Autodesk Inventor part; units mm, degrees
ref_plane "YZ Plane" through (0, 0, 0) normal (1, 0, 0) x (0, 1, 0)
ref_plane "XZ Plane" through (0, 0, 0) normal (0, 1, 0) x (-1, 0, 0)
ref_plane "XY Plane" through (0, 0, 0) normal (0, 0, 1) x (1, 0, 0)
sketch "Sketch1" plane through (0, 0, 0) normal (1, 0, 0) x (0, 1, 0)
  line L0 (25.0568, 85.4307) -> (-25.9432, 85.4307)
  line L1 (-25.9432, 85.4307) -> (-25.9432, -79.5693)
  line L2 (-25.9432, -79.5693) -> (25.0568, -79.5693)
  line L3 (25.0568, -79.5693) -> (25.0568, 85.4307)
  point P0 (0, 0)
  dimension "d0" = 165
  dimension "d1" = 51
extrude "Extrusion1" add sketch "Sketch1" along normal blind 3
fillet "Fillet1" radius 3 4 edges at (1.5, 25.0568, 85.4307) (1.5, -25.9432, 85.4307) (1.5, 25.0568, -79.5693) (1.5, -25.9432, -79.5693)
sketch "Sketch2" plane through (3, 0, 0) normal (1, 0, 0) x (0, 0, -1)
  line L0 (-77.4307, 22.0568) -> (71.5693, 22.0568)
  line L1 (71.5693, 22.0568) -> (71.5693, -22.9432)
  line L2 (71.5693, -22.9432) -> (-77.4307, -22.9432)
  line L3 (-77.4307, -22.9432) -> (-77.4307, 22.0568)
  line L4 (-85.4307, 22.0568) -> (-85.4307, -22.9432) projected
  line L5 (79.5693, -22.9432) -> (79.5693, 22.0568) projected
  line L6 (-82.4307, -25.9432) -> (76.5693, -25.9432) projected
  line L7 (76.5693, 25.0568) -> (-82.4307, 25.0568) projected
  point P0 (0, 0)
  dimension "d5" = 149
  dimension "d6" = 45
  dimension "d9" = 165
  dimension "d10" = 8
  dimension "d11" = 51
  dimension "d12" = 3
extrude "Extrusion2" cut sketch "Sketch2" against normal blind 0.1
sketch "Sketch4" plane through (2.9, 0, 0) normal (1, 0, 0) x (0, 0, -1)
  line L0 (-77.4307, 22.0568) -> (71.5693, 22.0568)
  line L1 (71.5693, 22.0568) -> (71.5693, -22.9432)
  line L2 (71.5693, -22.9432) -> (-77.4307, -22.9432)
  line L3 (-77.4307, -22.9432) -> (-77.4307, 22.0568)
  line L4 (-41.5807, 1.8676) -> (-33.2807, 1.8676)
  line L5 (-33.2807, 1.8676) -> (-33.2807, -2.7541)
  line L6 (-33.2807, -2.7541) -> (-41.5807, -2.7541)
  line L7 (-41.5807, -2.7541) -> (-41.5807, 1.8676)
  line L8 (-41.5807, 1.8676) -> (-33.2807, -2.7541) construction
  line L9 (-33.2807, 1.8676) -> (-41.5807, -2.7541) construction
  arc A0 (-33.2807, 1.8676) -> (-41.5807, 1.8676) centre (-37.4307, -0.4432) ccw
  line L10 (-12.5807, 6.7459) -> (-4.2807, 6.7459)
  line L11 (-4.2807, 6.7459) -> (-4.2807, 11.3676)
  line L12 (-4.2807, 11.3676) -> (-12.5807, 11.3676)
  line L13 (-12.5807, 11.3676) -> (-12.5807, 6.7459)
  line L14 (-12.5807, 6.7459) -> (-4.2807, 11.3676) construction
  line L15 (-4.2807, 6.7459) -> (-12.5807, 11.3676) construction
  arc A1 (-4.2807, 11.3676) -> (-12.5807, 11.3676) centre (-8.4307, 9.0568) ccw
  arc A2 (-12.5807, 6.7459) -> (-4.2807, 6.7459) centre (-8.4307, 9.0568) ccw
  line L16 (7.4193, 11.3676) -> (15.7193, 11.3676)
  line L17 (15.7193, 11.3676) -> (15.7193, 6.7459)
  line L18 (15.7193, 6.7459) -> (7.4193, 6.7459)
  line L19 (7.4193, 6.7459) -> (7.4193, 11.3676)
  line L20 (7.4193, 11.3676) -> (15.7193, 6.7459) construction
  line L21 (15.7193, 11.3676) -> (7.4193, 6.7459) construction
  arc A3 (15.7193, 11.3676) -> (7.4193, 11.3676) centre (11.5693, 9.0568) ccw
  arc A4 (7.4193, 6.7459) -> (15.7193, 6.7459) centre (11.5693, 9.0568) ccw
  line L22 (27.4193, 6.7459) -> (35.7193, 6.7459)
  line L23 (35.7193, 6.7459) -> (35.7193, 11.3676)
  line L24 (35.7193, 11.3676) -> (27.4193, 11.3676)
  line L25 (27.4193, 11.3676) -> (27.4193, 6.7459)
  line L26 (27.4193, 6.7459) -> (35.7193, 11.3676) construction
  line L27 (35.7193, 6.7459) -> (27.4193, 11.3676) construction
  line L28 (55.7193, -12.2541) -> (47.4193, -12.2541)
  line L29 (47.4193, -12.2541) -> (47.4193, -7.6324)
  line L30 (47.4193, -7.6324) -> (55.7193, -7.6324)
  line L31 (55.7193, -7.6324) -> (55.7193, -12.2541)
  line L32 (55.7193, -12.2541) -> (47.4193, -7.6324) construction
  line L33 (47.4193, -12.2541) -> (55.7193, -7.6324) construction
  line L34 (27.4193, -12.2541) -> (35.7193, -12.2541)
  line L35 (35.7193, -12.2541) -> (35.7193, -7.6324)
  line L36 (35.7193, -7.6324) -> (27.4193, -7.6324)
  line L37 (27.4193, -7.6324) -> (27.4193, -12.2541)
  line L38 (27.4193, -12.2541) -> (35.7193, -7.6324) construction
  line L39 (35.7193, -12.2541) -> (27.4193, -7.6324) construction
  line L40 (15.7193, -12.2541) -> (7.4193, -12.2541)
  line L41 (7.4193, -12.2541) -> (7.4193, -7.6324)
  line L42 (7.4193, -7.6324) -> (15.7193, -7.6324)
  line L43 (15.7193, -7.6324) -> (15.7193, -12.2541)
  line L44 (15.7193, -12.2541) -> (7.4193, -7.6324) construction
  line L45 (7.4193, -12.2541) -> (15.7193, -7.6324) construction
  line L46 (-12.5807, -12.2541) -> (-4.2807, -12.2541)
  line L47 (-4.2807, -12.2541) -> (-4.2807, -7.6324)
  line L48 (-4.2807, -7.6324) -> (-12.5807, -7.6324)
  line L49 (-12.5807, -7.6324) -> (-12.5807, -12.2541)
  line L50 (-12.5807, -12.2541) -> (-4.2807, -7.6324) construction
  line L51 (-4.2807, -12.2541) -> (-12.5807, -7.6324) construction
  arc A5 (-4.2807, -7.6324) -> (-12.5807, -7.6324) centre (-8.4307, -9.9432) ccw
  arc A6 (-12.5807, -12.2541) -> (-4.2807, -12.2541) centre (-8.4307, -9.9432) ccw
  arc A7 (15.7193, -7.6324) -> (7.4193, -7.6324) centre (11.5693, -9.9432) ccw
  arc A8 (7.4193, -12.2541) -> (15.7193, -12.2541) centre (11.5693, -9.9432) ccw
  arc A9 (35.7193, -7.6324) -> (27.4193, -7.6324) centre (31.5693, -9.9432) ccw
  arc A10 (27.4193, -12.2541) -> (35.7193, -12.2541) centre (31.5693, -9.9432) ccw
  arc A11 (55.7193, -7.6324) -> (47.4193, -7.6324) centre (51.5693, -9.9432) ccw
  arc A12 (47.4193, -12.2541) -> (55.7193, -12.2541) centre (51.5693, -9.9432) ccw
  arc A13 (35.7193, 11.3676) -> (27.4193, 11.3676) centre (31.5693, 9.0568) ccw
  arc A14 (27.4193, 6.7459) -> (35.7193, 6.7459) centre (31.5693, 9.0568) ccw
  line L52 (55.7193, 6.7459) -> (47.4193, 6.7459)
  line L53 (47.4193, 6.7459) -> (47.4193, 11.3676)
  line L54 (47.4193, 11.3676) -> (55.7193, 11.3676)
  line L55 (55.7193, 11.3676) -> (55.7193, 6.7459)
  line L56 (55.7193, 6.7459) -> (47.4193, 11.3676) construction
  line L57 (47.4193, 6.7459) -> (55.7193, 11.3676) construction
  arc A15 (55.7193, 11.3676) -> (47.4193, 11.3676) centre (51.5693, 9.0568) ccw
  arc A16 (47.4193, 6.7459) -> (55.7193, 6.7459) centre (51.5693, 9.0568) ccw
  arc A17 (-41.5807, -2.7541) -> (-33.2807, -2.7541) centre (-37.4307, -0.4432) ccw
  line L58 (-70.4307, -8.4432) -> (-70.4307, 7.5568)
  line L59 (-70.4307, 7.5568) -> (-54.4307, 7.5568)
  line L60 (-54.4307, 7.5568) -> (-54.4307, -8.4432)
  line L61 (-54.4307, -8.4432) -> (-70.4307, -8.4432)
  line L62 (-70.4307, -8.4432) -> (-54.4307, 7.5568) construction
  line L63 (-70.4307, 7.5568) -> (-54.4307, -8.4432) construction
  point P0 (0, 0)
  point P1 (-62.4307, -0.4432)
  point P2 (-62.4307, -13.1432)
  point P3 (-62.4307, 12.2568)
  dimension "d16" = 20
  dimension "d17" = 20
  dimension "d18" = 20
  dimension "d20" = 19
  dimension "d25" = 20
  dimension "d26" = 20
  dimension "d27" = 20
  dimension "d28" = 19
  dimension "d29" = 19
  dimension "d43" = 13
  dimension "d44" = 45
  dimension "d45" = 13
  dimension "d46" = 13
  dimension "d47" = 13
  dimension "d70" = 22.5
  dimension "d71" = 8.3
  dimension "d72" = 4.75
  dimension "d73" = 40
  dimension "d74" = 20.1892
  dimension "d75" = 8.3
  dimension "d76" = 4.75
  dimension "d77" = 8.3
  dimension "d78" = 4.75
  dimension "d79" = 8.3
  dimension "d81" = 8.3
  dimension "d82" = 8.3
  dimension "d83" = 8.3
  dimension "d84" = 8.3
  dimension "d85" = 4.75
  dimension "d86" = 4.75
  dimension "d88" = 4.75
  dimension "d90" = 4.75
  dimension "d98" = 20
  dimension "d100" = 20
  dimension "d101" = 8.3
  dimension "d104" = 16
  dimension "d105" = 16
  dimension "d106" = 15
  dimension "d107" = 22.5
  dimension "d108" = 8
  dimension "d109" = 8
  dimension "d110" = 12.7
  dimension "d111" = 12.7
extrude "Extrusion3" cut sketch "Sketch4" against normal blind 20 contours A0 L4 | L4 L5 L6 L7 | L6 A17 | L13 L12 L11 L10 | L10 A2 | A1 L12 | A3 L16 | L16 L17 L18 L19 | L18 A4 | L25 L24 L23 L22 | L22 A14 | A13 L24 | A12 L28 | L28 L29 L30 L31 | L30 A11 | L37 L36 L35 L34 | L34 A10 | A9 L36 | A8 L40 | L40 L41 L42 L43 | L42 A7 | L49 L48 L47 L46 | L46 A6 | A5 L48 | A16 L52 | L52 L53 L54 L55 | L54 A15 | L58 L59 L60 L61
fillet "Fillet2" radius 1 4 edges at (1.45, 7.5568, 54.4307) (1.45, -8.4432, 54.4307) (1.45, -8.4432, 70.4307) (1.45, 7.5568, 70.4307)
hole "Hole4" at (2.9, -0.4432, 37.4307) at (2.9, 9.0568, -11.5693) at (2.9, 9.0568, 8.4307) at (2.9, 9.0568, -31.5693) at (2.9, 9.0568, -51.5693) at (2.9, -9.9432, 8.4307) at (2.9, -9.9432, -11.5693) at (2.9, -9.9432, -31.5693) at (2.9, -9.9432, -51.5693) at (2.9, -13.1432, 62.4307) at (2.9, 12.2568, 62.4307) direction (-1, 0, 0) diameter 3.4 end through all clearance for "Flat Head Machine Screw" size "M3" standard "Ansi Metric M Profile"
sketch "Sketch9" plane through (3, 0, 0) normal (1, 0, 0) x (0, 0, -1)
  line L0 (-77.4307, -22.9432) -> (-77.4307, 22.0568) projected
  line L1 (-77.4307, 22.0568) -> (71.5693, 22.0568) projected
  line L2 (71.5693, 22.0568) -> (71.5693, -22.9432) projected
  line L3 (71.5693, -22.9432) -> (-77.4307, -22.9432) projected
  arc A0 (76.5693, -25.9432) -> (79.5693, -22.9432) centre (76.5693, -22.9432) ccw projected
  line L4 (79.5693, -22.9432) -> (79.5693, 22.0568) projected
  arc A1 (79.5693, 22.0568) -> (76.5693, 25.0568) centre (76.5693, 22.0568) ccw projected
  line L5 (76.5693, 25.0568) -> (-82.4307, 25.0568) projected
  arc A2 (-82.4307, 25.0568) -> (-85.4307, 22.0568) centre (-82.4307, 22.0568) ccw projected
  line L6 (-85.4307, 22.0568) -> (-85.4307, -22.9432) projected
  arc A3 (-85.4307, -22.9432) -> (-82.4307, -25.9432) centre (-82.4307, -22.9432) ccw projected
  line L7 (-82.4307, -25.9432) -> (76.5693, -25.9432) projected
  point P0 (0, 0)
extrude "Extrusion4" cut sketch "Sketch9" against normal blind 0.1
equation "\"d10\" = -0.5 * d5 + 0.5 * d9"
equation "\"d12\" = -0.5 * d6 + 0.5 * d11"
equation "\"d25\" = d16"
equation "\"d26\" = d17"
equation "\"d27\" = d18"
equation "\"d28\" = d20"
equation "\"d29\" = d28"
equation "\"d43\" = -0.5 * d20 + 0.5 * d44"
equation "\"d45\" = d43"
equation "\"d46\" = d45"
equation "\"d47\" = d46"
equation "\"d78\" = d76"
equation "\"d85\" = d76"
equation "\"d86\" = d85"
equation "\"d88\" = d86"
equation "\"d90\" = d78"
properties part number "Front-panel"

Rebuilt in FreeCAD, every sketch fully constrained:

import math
import FreeCAD as App
import Part
import Sketcher
from FreeCAD import Vector


def edges_at(feature, points):
    """Names of the edges that pass closest to the given points."""
    edges = feature.Shape.Edges
    near = lambda p: min(range(len(edges)), key=lambda i: edges[i].distToShape(Part.Vertex(*p))[0])
    return sorted({f"Edge{near(p) + 1}" for p in points})

doc = App.newDocument("Part")
body = doc.addObject("PartDesign::Body", "Body")

# Sketch on YZ plane
sketch1 = body.newObject("Sketcher::SketchObject", "Sketch")
sketch1.AttachmentSupport = (doc.getObject("YZ_Plane"), [""])
sketch1.MapMode = "FlatFace"
sketch1.addGeometry([
    Part.LineSegment(Vector(25.0568, -79.5693, 0), Vector(25.0568, 85.4307, 0)),
    Part.LineSegment(Vector(25.0568, 85.4307, 0), Vector(-25.9432, 85.4307, 0)),
    Part.LineSegment(Vector(-25.9432, 85.4307, 0), Vector(-25.9432, -79.5693, 0)),
    Part.LineSegment(Vector(-25.9432, -79.5693, 0), Vector(25.0568, -79.5693, 0)),
], False)
sketch1.addConstraint([
    Sketcher.Constraint("Coincident", 0, 2, 1, 1),
    Sketcher.Constraint("Coincident", 1, 2, 2, 1),
    Sketcher.Constraint("Coincident", 2, 2, 3, 1),
    Sketcher.Constraint("Coincident", 3, 2, 0, 1),
    Sketcher.Constraint("Vertical", 0),
    Sketcher.Constraint("Horizontal", 1),
    Sketcher.Constraint("Vertical", 2),
    Sketcher.Constraint("Horizontal", 3),
    Sketcher.Constraint("DistanceX", 1, 2, 1, 1, 51.0),
    Sketcher.Constraint("DistanceY", 0, 1, 0, 2, 165.0),
    Sketcher.Constraint("DistanceX", -1, 1, 0, 2, 25.0568),
    Sketcher.Constraint("DistanceY", -1, 1, 0, 2, 85.4307),
])
pad1 = body.newObject("PartDesign::Pad", "Pad")
pad1.Profile = sketch1
pad1.Length = 3
doc.recompute()

fillet = body.newObject("PartDesign::Fillet", "Fillet")
fillet.Base = (pad1, edges_at(pad1, [
    (1.5, 25.057, 85.431),
    (1.5, -25.943, 85.431),
    (1.5, 25.057, -79.569),
    (1.5, -25.943, -79.569),
]))
fillet.Radius = 3

# Sketch on YZ plane
sketch2 = body.newObject("Sketcher::SketchObject", "Sketch001")
sketch2.AttachmentSupport = (doc.getObject("YZ_Plane"), [""])
sketch2.MapMode = "FlatFace"
sketch2.AttachmentOffset = App.Placement(Vector(0, 0, 3), App.Rotation())
sketch2.addGeometry([
    Part.LineSegment(Vector(22.0568, -71.5693, 0), Vector(22.0568, 77.4307, 0)),
    Part.LineSegment(Vector(22.0568, 77.4307, 0), Vector(-22.9432, 77.4307, 0)),
    Part.LineSegment(Vector(-22.9432, 77.4307, 0), Vector(-22.9432, -71.5693, 0)),
    Part.LineSegment(Vector(-22.9432, -71.5693, 0), Vector(22.0568, -71.5693, 0)),
], False)
sketch2.addConstraint([
    Sketcher.Constraint("Coincident", 0, 2, 1, 1),
    Sketcher.Constraint("Coincident", 1, 2, 2, 1),
    Sketcher.Constraint("Coincident", 2, 2, 3, 1),
    Sketcher.Constraint("Coincident", 3, 2, 0, 1),
    Sketcher.Constraint("Vertical", 0),
    Sketcher.Constraint("Horizontal", 1),
    Sketcher.Constraint("Vertical", 2),
    Sketcher.Constraint("Horizontal", 3),
    Sketcher.Constraint("DistanceX", 1, 2, 1, 1, 45.0),
    Sketcher.Constraint("DistanceY", 0, 1, 0, 2, 149.0),
    Sketcher.Constraint("DistanceX", -1, 1, 0, 2, 22.0568),
    Sketcher.Constraint("DistanceY", -1, 1, 0, 2, 77.4307),
])
pocket1 = body.newObject("PartDesign::Pocket", "Pocket")
pocket1.Profile = sketch2
pocket1.Length = 0.1

# Sketch on YZ plane
sketch3 = body.newObject("Sketcher::SketchObject", "Sketch002")
sketch3.AttachmentSupport = (doc.getObject("YZ_Plane"), [""])
sketch3.MapMode = "FlatFace"
sketch3.AttachmentOffset = App.Placement(Vector(0, 0, 2.9), App.Rotation())
sketch3.addGeometry([
    Part.ArcOfCircle(Part.Circle(Vector(-0.4432, 37.4307, 0), Vector(0, 0, 1), 4.749979), math.radians(-60.890097), math.radians(60.890097)),  # 0
    Part.LineSegment(Vector(1.8676, 41.5807, 0), Vector(-2.7541, 41.5807, 0)),  # 1
    Part.ArcOfCircle(Part.Circle(Vector(-0.4432, 37.4307, 0), Vector(0, 0, 1), 4.750027), math.radians(119.110957), math.radians(240.889043)),  # 2
    Part.LineSegment(Vector(-2.7541, 33.2807, 0), Vector(1.8676, 33.2807, 0)),  # 3
    Part.LineSegment(Vector(11.3676, 12.5807, 0), Vector(6.7459, 12.5807, 0)),  # 4
    Part.ArcOfCircle(Part.Circle(Vector(9.0568, 8.4307, 0), Vector(0, 0, 1), 4.750027), math.radians(119.110957), math.radians(240.889043)),  # 5
    Part.LineSegment(Vector(6.7459, 4.2807, 0), Vector(11.3676, 4.2807, 0)),  # 6
    Part.ArcOfCircle(Part.Circle(Vector(9.0568, 8.4307, 0), Vector(0, 0, 1), 4.749979), math.radians(-60.890097), math.radians(60.890097)),  # 7
    Part.ArcOfCircle(Part.Circle(Vector(9.0568, -11.5693, 0), Vector(0, 0, 1), 4.749979), math.radians(-60.890097), math.radians(60.890097)),  # 8
    Part.LineSegment(Vector(11.3676, -7.4193, 0), Vector(6.7459, -7.4193, 0)),  # 9
    Part.ArcOfCircle(Part.Circle(Vector(9.0568, -11.5693, 0), Vector(0, 0, 1), 4.750027), math.radians(119.110957), math.radians(240.889043)),  # 10
    Part.LineSegment(Vector(6.7459, -15.7193, 0), Vector(11.3676, -15.7193, 0)),  # 11
    Part.LineSegment(Vector(11.3676, -27.4193, 0), Vector(6.7459, -27.4193, 0)),  # 12
    Part.ArcOfCircle(Part.Circle(Vector(9.0568, -31.5693, 0), Vector(0, 0, 1), 4.750027), math.radians(119.110957), math.radians(240.889043)),  # 13
    Part.LineSegment(Vector(6.7459, -35.7193, 0), Vector(11.3676, -35.7193, 0)),  # 14
    Part.ArcOfCircle(Part.Circle(Vector(9.0568, -31.5693, 0), Vector(0, 0, 1), 4.749979), math.radians(-60.890097), math.radians(60.890097)),  # 15
    Part.ArcOfCircle(Part.Circle(Vector(-9.9432, -51.5693, 0), Vector(0, 0, 1), 4.750027), math.radians(119.110957), math.radians(240.889043)),  # 16
    Part.LineSegment(Vector(-12.2541, -55.7193, 0), Vector(-7.6324, -55.7193, 0)),  # 17
    Part.ArcOfCircle(Part.Circle(Vector(-9.9432, -51.5693, 0), Vector(0, 0, 1), 4.749979), math.radians(-60.890097), math.radians(60.890097)),  # 18
    Part.LineSegment(Vector(-7.6324, -47.4193, 0), Vector(-12.2541, -47.4193, 0)),  # 19
    Part.LineSegment(Vector(-7.6324, -27.4193, 0), Vector(-12.2541, -27.4193, 0)),  # 20
    Part.ArcOfCircle(Part.Circle(Vector(-9.9432, -31.5693, 0), Vector(0, 0, 1), 4.750027), math.radians(119.110957), math.radians(240.889043)),  # 21
    Part.LineSegment(Vector(-12.2541, -35.7193, 0), Vector(-7.6324, -35.7193, 0)),  # 22
    Part.ArcOfCircle(Part.Circle(Vector(-9.9432, -31.5693, 0), Vector(0, 0, 1), 4.749979), math.radians(-60.890097), math.radians(60.890097)),  # 23
    Part.ArcOfCircle(Part.Circle(Vector(-9.9432, -11.5693, 0), Vector(0, 0, 1), 4.750027), math.radians(119.110957), math.radians(240.889043)),  # 24
    Part.LineSegment(Vector(-12.2541, -15.7193, 0), Vector(-7.6324, -15.7193, 0)),  # 25
    Part.ArcOfCircle(Part.Circle(Vector(-9.9432, -11.5693, 0), Vector(0, 0, 1), 4.749979), math.radians(-60.890097), math.radians(60.890097)),  # 26
    Part.LineSegment(Vector(-7.6324, -7.4193, 0), Vector(-12.2541, -7.4193, 0)),  # 27
    Part.LineSegment(Vector(-7.6324, 12.5807, 0), Vector(-12.2541, 12.5807, 0)),  # 28
    Part.ArcOfCircle(Part.Circle(Vector(-9.9432, 8.4307, 0), Vector(0, 0, 1), 4.750027), math.radians(119.110957), math.radians(240.889043)),  # 29
    Part.LineSegment(Vector(-12.2541, 4.2807, 0), Vector(-7.6324, 4.2807, 0)),  # 30
    Part.ArcOfCircle(Part.Circle(Vector(-9.9432, 8.4307, 0), Vector(0, 0, 1), 4.749979), math.radians(-60.890097), math.radians(60.890097)),  # 31
    Part.ArcOfCircle(Part.Circle(Vector(9.0568, -51.5693, 0), Vector(0, 0, 1), 4.750027), math.radians(119.110957), math.radians(240.889043)),  # 32
    Part.LineSegment(Vector(6.7459, -55.7193, 0), Vector(11.3676, -55.7193, 0)),  # 33
    Part.ArcOfCircle(Part.Circle(Vector(9.0568, -51.5693, 0), Vector(0, 0, 1), 4.749979), math.radians(-60.890097), math.radians(60.890097)),  # 34
    Part.LineSegment(Vector(11.3676, -47.4193, 0), Vector(6.7459, -47.4193, 0)),  # 35
    Part.LineSegment(Vector(7.5568, 70.4307, 0), Vector(-8.4432, 70.4307, 0)),  # 36
    Part.LineSegment(Vector(-8.4432, 70.4307, 0), Vector(-8.4432, 54.4307, 0)),  # 37
    Part.LineSegment(Vector(-8.4432, 54.4307, 0), Vector(7.5568, 54.4307, 0)),  # 38
    Part.LineSegment(Vector(7.5568, 54.4307, 0), Vector(7.5568, 70.4307, 0)),  # 39
], False)
sketch3.addConstraint([
    Sketcher.Constraint("Coincident", 0, 2, 1, 1),
    Sketcher.Constraint("Coincident", 1, 2, 2, 1),
    Sketcher.Constraint("Coincident", 2, 2, 3, 1),
    Sketcher.Constraint("Coincident", 3, 2, 0, 1),
    Sketcher.Constraint("Coincident", 4, 2, 5, 1),
    Sketcher.Constraint("Coincident", 5, 2, 6, 1),
    Sketcher.Constraint("Coincident", 6, 2, 7, 1),
    Sketcher.Constraint("Coincident", 7, 2, 4, 1),
    Sketcher.Constraint("Coincident", 8, 2, 9, 1),
    Sketcher.Constraint("Coincident", 9, 2, 10, 1),
    Sketcher.Constraint("Coincident", 10, 2, 11, 1),
    Sketcher.Constraint("Coincident", 11, 2, 8, 1),
    Sketcher.Constraint("Coincident", 12, 2, 13, 1),
    Sketcher.Constraint("Coincident", 13, 2, 14, 1),
    Sketcher.Constraint("Coincident", 14, 2, 15, 1),
    Sketcher.Constraint("Coincident", 15, 2, 12, 1),
    Sketcher.Constraint("Coincident", 16, 2, 17, 1),
    Sketcher.Constraint("Coincident", 17, 2, 18, 1),
    Sketcher.Constraint("Coincident", 18, 2, 19, 1),
    Sketcher.Constraint("Coincident", 19, 2, 16, 1),
    Sketcher.Constraint("Coincident", 20, 2, 21, 1),
    Sketcher.Constraint("Coincident", 21, 2, 22, 1),
    Sketcher.Constraint("Coincident", 22, 2, 23, 1),
    Sketcher.Constraint("Coincident", 23, 2, 20, 1),
    Sketcher.Constraint("Coincident", 24, 2, 25, 1),
    Sketcher.Constraint("Coincident", 25, 2, 26, 1),
    Sketcher.Constraint("Coincident", 26, 2, 27, 1),
    Sketcher.Constraint("Coincident", 27, 2, 24, 1),
    Sketcher.Constraint("Coincident", 28, 2, 29, 1),
    Sketcher.Constraint("Coincident", 29, 2, 30, 1),
    Sketcher.Constraint("Coincident", 30, 2, 31, 1),
    Sketcher.Constraint("Coincident", 31, 2, 28, 1),
    Sketcher.Constraint("Coincident", 32, 2, 33, 1),
    Sketcher.Constraint("Coincident", 33, 2, 34, 1),
    Sketcher.Constraint("Coincident", 34, 2, 35, 1),
    Sketcher.Constraint("Coincident", 35, 2, 32, 1),
    Sketcher.Constraint("Coincident", 36, 2, 37, 1),
    Sketcher.Constraint("Coincident", 37, 2, 38, 1),
    Sketcher.Constraint("Coincident", 38, 2, 39, 1),
    Sketcher.Constraint("Coincident", 39, 2, 36, 1),
    Sketcher.Constraint("Horizontal", 1),
    Sketcher.Constraint("Horizontal", 3),
    Sketcher.Constraint("Horizontal", 4),
    Sketcher.Constraint("Horizontal", 6),
    Sketcher.Constraint("Horizontal", 9),
    Sketcher.Constraint("Horizontal", 11),
    Sketcher.Constraint("Horizontal", 12),
    Sketcher.Constraint("Horizontal", 14),
    Sketcher.Constraint("Horizontal", 17),
    Sketcher.Constraint("Horizontal", 19),
    Sketcher.Constraint("Horizontal", 20),
    Sketcher.Constraint("Horizontal", 22),
    Sketcher.Constraint("Horizontal", 25),
    Sketcher.Constraint("Horizontal", 27),
    Sketcher.Constraint("Horizontal", 28),
    Sketcher.Constraint("Horizontal", 30),
    Sketcher.Constraint("Horizontal", 33),
    Sketcher.Constraint("Horizontal", 35),
    Sketcher.Constraint("Horizontal", 36),
    Sketcher.Constraint("Vertical", 37),
    Sketcher.Constraint("Horizontal", 38),
    Sketcher.Constraint("Vertical", 39),
    Sketcher.Constraint("Coincident", 2, 3, 0, 3),
    Sketcher.Constraint("Coincident", 7, 3, 5, 3),
    Sketcher.Constraint("Coincident", 10, 3, 8, 3),
    Sketcher.Constraint("Coincident", 15, 3, 13, 3),
    Sketcher.Constraint("Coincident", 18, 3, 16, 3),
    Sketcher.Constraint("Coincident", 23, 3, 21, 3),
    Sketcher.Constraint("Coincident", 26, 3, 24, 3),
    Sketcher.Constraint("Coincident", 31, 3, 29, 3),
    Sketcher.Constraint("Coincident", 34, 3, 32, 3),
    Sketcher.Constraint("Equal", 0, 2),
    Sketcher.Constraint("Equal", 2, 5),
    Sketcher.Constraint("Equal", 5, 7),
    Sketcher.Constraint("Equal", 7, 8),
    Sketcher.Constraint("Equal", 8, 10),
    Sketcher.Constraint("Equal", 10, 13),
    Sketcher.Constraint("Equal", 13, 15),
    Sketcher.Constraint("Equal", 15, 16),
    Sketcher.Constraint("Equal", 16, 18),
    Sketcher.Constraint("Equal", 18, 21),
    Sketcher.Constraint("Equal", 21, 23),
    Sketcher.Constraint("Equal", 23, 24),
    Sketcher.Constraint("Equal", 24, 26),
    Sketcher.Constraint("Equal", 26, 29),
    Sketcher.Constraint("Equal", 29, 31),
    Sketcher.Constraint("Equal", 31, 32),
    Sketcher.Constraint("Equal", 32, 34),
    Sketcher.Constraint("Horizontal", 15, 3, 21, 3),
    Sketcher.Constraint("Horizontal", 10, 3, 24, 3),
    Sketcher.Constraint("Horizontal", 7, 3, 29, 3),
    Sketcher.Constraint("Horizontal", 18, 3, 32, 3),
    Sketcher.Constraint("Horizontal", 15, 2, 20, 2),
    Sketcher.Constraint("Horizontal", 14, 2, 21, 2),
    Sketcher.Constraint("Horizontal", 11, 2, 24, 2),
    Sketcher.Constraint("Horizontal", 9, 2, 26, 2),
    Sketcher.Constraint("Horizontal", 7, 2, 28, 2),
    Sketcher.Constraint("Horizontal", 6, 2, 29, 2),
    Sketcher.Constraint("Horizontal", 17, 2, 32, 2),
    Sketcher.Constraint("Horizontal", 19, 2, 34, 2),
    Sketcher.Constraint("Vertical", 7, 3, 8, 3),
    Sketcher.Constraint("Vertical", 10, 3, 13, 3),
    Sketcher.Constraint("Vertical", 18, 3, 21, 3),
    Sketcher.Constraint("Vertical", 23, 3, 24, 3),
    Sketcher.Constraint("Vertical", 26, 3, 29, 3),
    Sketcher.Constraint("Vertical", 15, 3, 32, 3),
    Sketcher.Constraint("Vertical", 1, 2, 2, 2),
    Sketcher.Constraint("Vertical", 4, 2, 5, 2),
    Sketcher.Constraint("Vertical", 7, 2, 8, 2),
    Sketcher.Constraint("Vertical", 9, 2, 10, 2),
    Sketcher.Constraint("Vertical", 10, 2, 12, 2),
    Sketcher.Constraint("Vertical", 12, 2, 13, 2),
    Sketcher.Constraint("Vertical", 17, 2, 18, 2),
    Sketcher.Constraint("Vertical", 19, 2, 20, 2),
    Sketcher.Constraint("Equal", 3, 4),
    Sketcher.Constraint("Equal", 38, 37),
    Sketcher.Constraint("DistanceX", 36, 2, 36, 1, 16.0),
    Sketcher.Constraint("Radius", 0, 4.75),
    Sketcher.Constraint("DistanceY", 8, 3, 5, 3, 20.0),
    Sketcher.Constraint("DistanceY", 13, 3, 8, 3, 20.0),
    Sketcher.Constraint("DistanceX", 16, 3, 13, 3, 19.0),
    Sketcher.Constraint("DistanceY", 16, 3, 13, 3, 20.0),
    Sketcher.Constraint("DistanceX", 36, 2, 0, 3, 8.0),
    Sketcher.Constraint("DistanceY", 2, 2, 1, 2, 8.3),
    Sketcher.Constraint("DistanceY", 5, 3, 0, 3, 29.0),
    Sketcher.Constraint("DistanceY", 0, 3, 36, 2, 33.0),
    Sketcher.Constraint("DistanceX", 0, 3, 5, 3, 9.5),
    Sketcher.Constraint("DistanceX", 1, 2, -1, 1, 2.754),
    Sketcher.Constraint("DistanceY", -1, 1, 0, 3, 37.4307),
])
pocket2 = body.newObject("PartDesign::Pocket", "Pocket001")
pocket2.Profile = sketch3
pocket2.Length = 20
doc.recompute()

fillet2 = body.newObject("PartDesign::Fillet", "Fillet001")
fillet2.Base = (pocket2, edges_at(pocket2, [
    (1.45, 7.557, 54.431),
    (1.45, -8.443, 54.431),
    (1.45, -8.443, 70.431),
    (1.45, 7.557, 70.431),
]))
fillet2.Radius = 1

# Sketch on YZ plane
sketch4 = body.newObject("Sketcher::SketchObject", "Sketch003")
sketch4.AttachmentSupport = (doc.getObject("YZ_Plane"), [""])
sketch4.MapMode = "FlatFace"
sketch4.AttachmentOffset = App.Placement(Vector(0, 0, 2.9), App.Rotation())
sketch4.addGeometry([
    Part.Circle(Vector(-0.4432, 37.4307, 0), Vector(0, 0, 1), 1.7),  # 0
    Part.Circle(Vector(9.0568, -11.5693, 0), Vector(0, 0, 1), 1.7),  # 1
    Part.Circle(Vector(9.0568, 8.4307, 0), Vector(0, 0, 1), 1.7),  # 2
    Part.Circle(Vector(9.0568, -31.5693, 0), Vector(0, 0, 1), 1.7),  # 3
    Part.Circle(Vector(9.0568, -51.5693, 0), Vector(0, 0, 1), 1.7),  # 4
    Part.Circle(Vector(-9.9432, 8.4307, 0), Vector(0, 0, 1), 1.7),  # 5
    Part.Circle(Vector(-9.9432, -11.5693, 0), Vector(0, 0, 1), 1.7),  # 6
    Part.Circle(Vector(-9.9432, -31.5693, 0), Vector(0, 0, 1), 1.7),  # 7
    Part.Circle(Vector(-9.9432, -51.5693, 0), Vector(0, 0, 1), 1.7),  # 8
    Part.Circle(Vector(-13.1432, 62.4307, 0), Vector(0, 0, 1), 1.7),  # 9
    Part.Circle(Vector(12.2568, 62.4307, 0), Vector(0, 0, 1), 1.7),  # 10
], False)
sketch4.addConstraint([
    Sketcher.Constraint("Equal", 0, 1),
    Sketcher.Constraint("Equal", 1, 2),
    Sketcher.Constraint("Equal", 2, 3),
    Sketcher.Constraint("Equal", 3, 4),
    Sketcher.Constraint("Equal", 4, 5),
    Sketcher.Constraint("Equal", 5, 6),
    Sketcher.Constraint("Equal", 6, 7),
    Sketcher.Constraint("Equal", 7, 8),
    Sketcher.Constraint("Equal", 8, 9),
    Sketcher.Constraint("Equal", 9, 10),
    Sketcher.Constraint("Horizontal", 2, 3, 5, 3),
    Sketcher.Constraint("Horizontal", 1, 3, 6, 3),
    Sketcher.Constraint("Horizontal", 3, 3, 7, 3),
    Sketcher.Constraint("Horizontal", 4, 3, 8, 3),
    Sketcher.Constraint("Horizontal", 9, 3, 10, 3),
    Sketcher.Constraint("Vertical", 1, 3, 2, 3),
    Sketcher.Constraint("Vertical", 2, 3, 3, 3),
    Sketcher.Constraint("Vertical", 3, 3, 4, 3),
    Sketcher.Constraint("Vertical", 5, 3, 6, 3),
    Sketcher.Constraint("Vertical", 6, 3, 7, 3),
    Sketcher.Constraint("Vertical", 7, 3, 8, 3),
    Sketcher.Constraint("Diameter", 0, 3.4),
    Sketcher.Constraint("DistanceY", 1, 3, 0, 3, 49.0),
    Sketcher.Constraint("DistanceY", 1, 3, 2, 3, 20.0),
    Sketcher.Constraint("DistanceY", 3, 3, 1, 3, 20.0),
    Sketcher.Constraint("DistanceY", 4, 3, 3, 3, 20.0),
    Sketcher.Constraint("DistanceX", 5, 3, 2, 3, 19.0),
    Sketcher.Constraint("DistanceY", 0, 3, 9, 3, 25.0),
    Sketcher.Constraint("DistanceX", 0, 3, 1, 3, 9.5),
    Sketcher.Constraint("DistanceX", 9, 3, 0, 3, 12.7),
    Sketcher.Constraint("DistanceX", 9, 3, 10, 3, 25.4),
    Sketcher.Constraint("DistanceX", 0, 3, -1, 1, 0.4432),
    Sketcher.Constraint("DistanceY", -1, 1, 0, 3, 37.4307),
])
doc.recompute()
hole = body.newObject("PartDesign::Hole", "Hole")
hole.Profile = sketch4
hole.ThreadType = "None"
hole.Diameter = 3.4
hole.DepthType = "ThroughAll"

# Sketch on YZ plane
sketch5 = body.newObject("Sketcher::SketchObject", "Sketch004")
sketch5.AttachmentSupport = (doc.getObject("YZ_Plane"), [""])
sketch5.MapMode = "FlatFace"
sketch5.AttachmentOffset = App.Placement(Vector(0, 0, 3), App.Rotation())
sketch5.addGeometry([
    Part.LineSegment(Vector(-25.9432, 82.4307, 0), Vector(-25.9432, -76.5693, 0)),  # 0
    Part.ArcOfCircle(Part.Circle(Vector(-22.9432, -76.5693, 0), Vector(0, 0, 1), 3), math.radians(180), math.radians(270)),  # 1
    Part.LineSegment(Vector(-22.9432, -79.5693, 0), Vector(22.0568, -79.5693, 0)),  # 2
    Part.ArcOfCircle(Part.Circle(Vector(22.0568, -76.5693, 0), Vector(0, 0, 1), 3), math.radians(-90), math.radians(0)),  # 3
    Part.LineSegment(Vector(25.0568, -76.5693, 0), Vector(25.0568, 82.4307, 0)),  # 4
    Part.ArcOfCircle(Part.Circle(Vector(22.0568, 82.4307, 0), Vector(0, 0, 1), 3), math.radians(0), math.radians(90)),  # 5
    Part.LineSegment(Vector(22.0568, 85.4307, 0), Vector(-22.9432, 85.4307, 0)),  # 6
    Part.ArcOfCircle(Part.Circle(Vector(-22.9432, 82.4307, 0), Vector(0, 0, 1), 3), math.radians(90), math.radians(180)),  # 7
    Part.LineSegment(Vector(-22.9432, -71.5693, 0), Vector(-22.9432, 77.4307, 0)),  # 8
    Part.LineSegment(Vector(-22.9432, 77.4307, 0), Vector(22.0568, 77.4307, 0)),  # 9
    Part.LineSegment(Vector(22.0568, 77.4307, 0), Vector(22.0568, -71.5693, 0)),  # 10
    Part.LineSegment(Vector(22.0568, -71.5693, 0), Vector(-22.9432, -71.5693, 0)),  # 11
], False)
sketch5.addConstraint([
    Sketcher.Constraint("Tangent", 0, 2, 1, 1),
    Sketcher.Constraint("Tangent", 1, 2, 2, 1),
    Sketcher.Constraint("Tangent", 2, 2, 3, 1),
    Sketcher.Constraint("Tangent", 3, 2, 4, 1),
    Sketcher.Constraint("Tangent", 4, 2, 5, 1),
    Sketcher.Constraint("Tangent", 5, 2, 6, 1),
    Sketcher.Constraint("Tangent", 6, 2, 7, 1),
    Sketcher.Constraint("Tangent", 7, 2, 0, 1),
    Sketcher.Constraint("Coincident", 8, 2, 9, 1),
    Sketcher.Constraint("Coincident", 9, 2, 10, 1),
    Sketcher.Constraint("Coincident", 10, 2, 11, 1),
    Sketcher.Constraint("Coincident", 11, 2, 8, 1),
    Sketcher.Constraint("Vertical", 0),
    Sketcher.Constraint("Horizontal", 2),
    Sketcher.Constraint("Vertical", 4),
    Sketcher.Constraint("Horizontal", 6),
    Sketcher.Constraint("Vertical", 8),
    Sketcher.Constraint("Horizontal", 9),
    Sketcher.Constraint("Vertical", 10),
    Sketcher.Constraint("Horizontal", 11),
    Sketcher.Constraint("Equal", 1, 3),
    Sketcher.Constraint("Equal", 3, 5),
    Sketcher.Constraint("Equal", 5, 7),
    Sketcher.Constraint("Vertical", 6, 2, 8, 2),
    Sketcher.Constraint("Vertical", 5, 2, 9, 2),
    Sketcher.Constraint("Radius", 1, 3.0),
    Sketcher.Constraint("DistanceX", 2, 1, 2, 2, 45.0),
    Sketcher.Constraint("DistanceY", 0, 2, 0, 1, 159.0),
    Sketcher.Constraint("DistanceY", 8, 1, 8, 2, 149.0),
    Sketcher.Constraint("DistanceY", 8, 2, 7, 3, 5.0),
    Sketcher.Constraint("DistanceX", 1, 3, -1, 1, 22.9432),
    Sketcher.Constraint("DistanceY", 1, 3, -1, 1, 76.5693),
])
pocket3 = body.newObject("PartDesign::Pocket", "Pocket002")
pocket3.Profile = sketch5
pocket3.Length = 0.1

doc.recompute()
